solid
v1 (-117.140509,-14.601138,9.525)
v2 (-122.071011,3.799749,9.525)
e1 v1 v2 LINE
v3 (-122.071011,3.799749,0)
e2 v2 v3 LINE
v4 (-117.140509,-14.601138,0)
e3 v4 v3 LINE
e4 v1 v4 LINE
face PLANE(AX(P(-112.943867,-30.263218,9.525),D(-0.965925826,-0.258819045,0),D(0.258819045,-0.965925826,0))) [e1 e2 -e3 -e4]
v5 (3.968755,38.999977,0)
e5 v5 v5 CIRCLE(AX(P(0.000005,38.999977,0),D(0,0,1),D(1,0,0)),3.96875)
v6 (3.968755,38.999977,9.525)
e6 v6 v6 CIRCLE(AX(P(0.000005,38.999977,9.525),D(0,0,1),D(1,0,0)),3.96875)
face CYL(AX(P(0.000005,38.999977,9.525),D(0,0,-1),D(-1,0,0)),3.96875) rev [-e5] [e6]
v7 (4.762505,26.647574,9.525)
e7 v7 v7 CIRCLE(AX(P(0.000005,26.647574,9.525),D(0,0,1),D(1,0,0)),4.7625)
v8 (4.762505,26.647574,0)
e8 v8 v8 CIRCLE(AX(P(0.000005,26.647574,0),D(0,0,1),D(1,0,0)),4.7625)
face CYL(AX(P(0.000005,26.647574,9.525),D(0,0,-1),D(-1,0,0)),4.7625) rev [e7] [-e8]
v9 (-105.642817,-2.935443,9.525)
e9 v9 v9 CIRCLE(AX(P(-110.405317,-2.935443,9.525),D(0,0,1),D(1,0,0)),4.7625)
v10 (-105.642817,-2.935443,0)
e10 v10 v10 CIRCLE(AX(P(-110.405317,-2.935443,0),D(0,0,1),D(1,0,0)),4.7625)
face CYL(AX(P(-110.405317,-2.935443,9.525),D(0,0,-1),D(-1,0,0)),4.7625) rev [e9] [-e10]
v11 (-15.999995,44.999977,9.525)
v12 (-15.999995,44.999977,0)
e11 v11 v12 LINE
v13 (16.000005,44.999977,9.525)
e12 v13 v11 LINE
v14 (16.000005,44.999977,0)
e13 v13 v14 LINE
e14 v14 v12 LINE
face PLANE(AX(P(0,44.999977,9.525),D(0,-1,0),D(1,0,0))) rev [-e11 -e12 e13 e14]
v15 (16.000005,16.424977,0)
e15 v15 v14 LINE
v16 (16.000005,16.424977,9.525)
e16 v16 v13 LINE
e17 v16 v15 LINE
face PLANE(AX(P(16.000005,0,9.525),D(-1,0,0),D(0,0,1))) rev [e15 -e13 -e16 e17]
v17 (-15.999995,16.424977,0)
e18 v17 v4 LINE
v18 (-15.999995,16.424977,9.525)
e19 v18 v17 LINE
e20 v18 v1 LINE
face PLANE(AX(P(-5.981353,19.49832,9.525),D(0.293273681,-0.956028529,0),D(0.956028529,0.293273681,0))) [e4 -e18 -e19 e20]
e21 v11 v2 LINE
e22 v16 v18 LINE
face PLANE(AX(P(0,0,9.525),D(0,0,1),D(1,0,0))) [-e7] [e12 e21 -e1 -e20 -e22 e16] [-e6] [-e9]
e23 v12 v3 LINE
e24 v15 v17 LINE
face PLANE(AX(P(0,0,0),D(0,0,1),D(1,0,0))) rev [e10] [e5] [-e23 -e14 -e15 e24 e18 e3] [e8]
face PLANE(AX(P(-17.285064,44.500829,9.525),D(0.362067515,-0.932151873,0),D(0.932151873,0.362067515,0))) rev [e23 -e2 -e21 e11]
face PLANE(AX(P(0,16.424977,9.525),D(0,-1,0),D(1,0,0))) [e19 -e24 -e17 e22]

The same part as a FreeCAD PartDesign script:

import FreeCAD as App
import Part
import Sketcher
Q = App.Units.Quantity


def add_polygon(sketch, points):
    """Adds a closed chain of lines whose ends are joined by coincident constraints."""
    first, n = sketch.GeometryCount, len(points)
    for a, b in zip(points, points[1:] + points[:1]):
        sketch.addGeometry(Part.LineSegment(App.Vector(*a, 0), App.Vector(*b, 0)), False)
    for i in range(n):
        sketch.addConstraint(Sketcher.Constraint("Coincident", first + i, 2, first + (i + 1) % n, 1))

doc = App.newDocument("Part")
body = doc.addObject("PartDesign::Body", "Body")

# Sketch on XY plane
sketch1 = doc.addObject("Sketcher::SketchObject", "Sketch")
body.addObject(sketch1)
sketch1.AttachmentSupport = (doc.XY_Plane, [""])
sketch1.MapMode = "FlatFace"
add_polygon(sketch1, [(-16, 45), (-122.1, 3.8), (-117.1, -14.6), (-16, 16.4), (16, 16.4), (16, 45)])  # lines 0-5
sketch1.addGeometry(Part.Circle(App.Vector(-110.4, -2.9, 0), App.Vector(0, 0, 1), 4.8), False)  # 6
sketch1.addGeometry(Part.Circle(App.Vector(0, 26.6, 0), App.Vector(0, 0, 1), 4.8), False)  # 7
sketch1.addGeometry(Part.Circle(App.Vector(0, 39, 0), App.Vector(0, 0, 1), 4), False)  # 8
sketch1.addConstraint([
    Sketcher.Constraint("Horizontal", 3),
    Sketcher.Constraint("Vertical", 4),
    Sketcher.Constraint("Horizontal", 5),
    Sketcher.Constraint("Equal", 6, 7),
    Sketcher.Constraint("Vertical", 7, 3, 8, 3),
    Sketcher.Constraint("Vertical", 2, 2, 5, 2),
    Sketcher.Constraint("Diameter", 6, Q("0.375 in")),
    Sketcher.Constraint("Diameter", 8, Q("0.3125 in")),
    Sketcher.Constraint("Angle", 1, Q("-75 deg")),
    Sketcher.Constraint("Distance", 1, Q("0.75 in")),
    Sketcher.Constraint("DistanceY", 4, 1, 4, 2, Q("1.125 in")),
    Sketcher.Constraint("DistanceX", 3, 1, 3, 2, 32.0),
    Sketcher.Constraint("DistanceX", 2, 2, 7, 3, 16.0),
    Sketcher.Constraint("DistanceY", 2, 2, 8, 3, 22.575),
    Sketcher.Constraint("Distance", 0, 113.791561),
    Sketcher.Constraint("Distance", 2, 105.79236),
    Sketcher.Constraint("DistanceX", 0, 2, -1, 1, 122.071011),
    Sketcher.Constraint("DistanceY", -1, 1, 0, 2, 3.799749),
    Sketcher.Constraint("DistanceX", 6, 3, 7, 3, 110.405322),
    Sketcher.Constraint("DistanceY", 6, 3, 8, 3, 41.93542),
    Sketcher.Constraint("DistanceY", 1, 2, 7, 3, 41.248712),
])
pad1 = doc.addObject("PartDesign::Pad", "Pad")
body.addObject(pad1)
pad1.Profile = sketch1
pad1.Length = Q("0.375 in")

doc.recompute()
